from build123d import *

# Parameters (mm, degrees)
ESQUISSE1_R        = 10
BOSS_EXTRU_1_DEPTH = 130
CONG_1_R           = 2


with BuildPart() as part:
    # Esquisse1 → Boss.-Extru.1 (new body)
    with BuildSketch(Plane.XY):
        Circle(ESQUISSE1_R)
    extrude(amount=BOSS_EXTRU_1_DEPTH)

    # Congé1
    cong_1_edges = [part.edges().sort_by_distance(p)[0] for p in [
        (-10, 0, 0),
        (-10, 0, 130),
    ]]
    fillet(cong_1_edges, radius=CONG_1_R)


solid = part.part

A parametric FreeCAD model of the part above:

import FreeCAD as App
import Part
import Sketcher
from FreeCAD import Vector
Q = App.Units.Quantity


def edges_at(feature, points):
    """Names of the edges that pass closest to the given points."""
    edges = feature.Shape.Edges
    near = lambda p: min(range(len(edges)), key=lambda i: edges[i].distToShape(Part.Vertex(*p))[0])
    return sorted({f"Edge{near(p) + 1}" for p in points})

doc = App.newDocument("Part")
body = doc.addObject("PartDesign::Body", "Body")

# Sketch on XY plane
sketch1 = body.newObject("Sketcher::SketchObject", "Sketch")
sketch1.AttachmentSupport = (doc.getObject("XY_Plane"), [""])
sketch1.MapMode = "FlatFace"
sketch1.addGeometry(Part.Circle(Vector(0, 0, 0), Vector(0, 0, 1), 10), False)
sketch1.addConstraint(Sketcher.Constraint("Coincident", 0, 3, -1, 1))
sketch1.addConstraint(Sketcher.Constraint("Diameter", 0, Q("20 mm")))
pad1 = body.newObject("PartDesign::Pad", "Pad")
pad1.Profile = sketch1
pad1.Length = 130
doc.recompute()

fillet = body.newObject("PartDesign::Fillet", "Fillet")
fillet.Base = (pad1, edges_at(pad1, [(-10, 0, 0), (-10, 0, 130)]))
fillet.Radius = 2

doc.recompute()
